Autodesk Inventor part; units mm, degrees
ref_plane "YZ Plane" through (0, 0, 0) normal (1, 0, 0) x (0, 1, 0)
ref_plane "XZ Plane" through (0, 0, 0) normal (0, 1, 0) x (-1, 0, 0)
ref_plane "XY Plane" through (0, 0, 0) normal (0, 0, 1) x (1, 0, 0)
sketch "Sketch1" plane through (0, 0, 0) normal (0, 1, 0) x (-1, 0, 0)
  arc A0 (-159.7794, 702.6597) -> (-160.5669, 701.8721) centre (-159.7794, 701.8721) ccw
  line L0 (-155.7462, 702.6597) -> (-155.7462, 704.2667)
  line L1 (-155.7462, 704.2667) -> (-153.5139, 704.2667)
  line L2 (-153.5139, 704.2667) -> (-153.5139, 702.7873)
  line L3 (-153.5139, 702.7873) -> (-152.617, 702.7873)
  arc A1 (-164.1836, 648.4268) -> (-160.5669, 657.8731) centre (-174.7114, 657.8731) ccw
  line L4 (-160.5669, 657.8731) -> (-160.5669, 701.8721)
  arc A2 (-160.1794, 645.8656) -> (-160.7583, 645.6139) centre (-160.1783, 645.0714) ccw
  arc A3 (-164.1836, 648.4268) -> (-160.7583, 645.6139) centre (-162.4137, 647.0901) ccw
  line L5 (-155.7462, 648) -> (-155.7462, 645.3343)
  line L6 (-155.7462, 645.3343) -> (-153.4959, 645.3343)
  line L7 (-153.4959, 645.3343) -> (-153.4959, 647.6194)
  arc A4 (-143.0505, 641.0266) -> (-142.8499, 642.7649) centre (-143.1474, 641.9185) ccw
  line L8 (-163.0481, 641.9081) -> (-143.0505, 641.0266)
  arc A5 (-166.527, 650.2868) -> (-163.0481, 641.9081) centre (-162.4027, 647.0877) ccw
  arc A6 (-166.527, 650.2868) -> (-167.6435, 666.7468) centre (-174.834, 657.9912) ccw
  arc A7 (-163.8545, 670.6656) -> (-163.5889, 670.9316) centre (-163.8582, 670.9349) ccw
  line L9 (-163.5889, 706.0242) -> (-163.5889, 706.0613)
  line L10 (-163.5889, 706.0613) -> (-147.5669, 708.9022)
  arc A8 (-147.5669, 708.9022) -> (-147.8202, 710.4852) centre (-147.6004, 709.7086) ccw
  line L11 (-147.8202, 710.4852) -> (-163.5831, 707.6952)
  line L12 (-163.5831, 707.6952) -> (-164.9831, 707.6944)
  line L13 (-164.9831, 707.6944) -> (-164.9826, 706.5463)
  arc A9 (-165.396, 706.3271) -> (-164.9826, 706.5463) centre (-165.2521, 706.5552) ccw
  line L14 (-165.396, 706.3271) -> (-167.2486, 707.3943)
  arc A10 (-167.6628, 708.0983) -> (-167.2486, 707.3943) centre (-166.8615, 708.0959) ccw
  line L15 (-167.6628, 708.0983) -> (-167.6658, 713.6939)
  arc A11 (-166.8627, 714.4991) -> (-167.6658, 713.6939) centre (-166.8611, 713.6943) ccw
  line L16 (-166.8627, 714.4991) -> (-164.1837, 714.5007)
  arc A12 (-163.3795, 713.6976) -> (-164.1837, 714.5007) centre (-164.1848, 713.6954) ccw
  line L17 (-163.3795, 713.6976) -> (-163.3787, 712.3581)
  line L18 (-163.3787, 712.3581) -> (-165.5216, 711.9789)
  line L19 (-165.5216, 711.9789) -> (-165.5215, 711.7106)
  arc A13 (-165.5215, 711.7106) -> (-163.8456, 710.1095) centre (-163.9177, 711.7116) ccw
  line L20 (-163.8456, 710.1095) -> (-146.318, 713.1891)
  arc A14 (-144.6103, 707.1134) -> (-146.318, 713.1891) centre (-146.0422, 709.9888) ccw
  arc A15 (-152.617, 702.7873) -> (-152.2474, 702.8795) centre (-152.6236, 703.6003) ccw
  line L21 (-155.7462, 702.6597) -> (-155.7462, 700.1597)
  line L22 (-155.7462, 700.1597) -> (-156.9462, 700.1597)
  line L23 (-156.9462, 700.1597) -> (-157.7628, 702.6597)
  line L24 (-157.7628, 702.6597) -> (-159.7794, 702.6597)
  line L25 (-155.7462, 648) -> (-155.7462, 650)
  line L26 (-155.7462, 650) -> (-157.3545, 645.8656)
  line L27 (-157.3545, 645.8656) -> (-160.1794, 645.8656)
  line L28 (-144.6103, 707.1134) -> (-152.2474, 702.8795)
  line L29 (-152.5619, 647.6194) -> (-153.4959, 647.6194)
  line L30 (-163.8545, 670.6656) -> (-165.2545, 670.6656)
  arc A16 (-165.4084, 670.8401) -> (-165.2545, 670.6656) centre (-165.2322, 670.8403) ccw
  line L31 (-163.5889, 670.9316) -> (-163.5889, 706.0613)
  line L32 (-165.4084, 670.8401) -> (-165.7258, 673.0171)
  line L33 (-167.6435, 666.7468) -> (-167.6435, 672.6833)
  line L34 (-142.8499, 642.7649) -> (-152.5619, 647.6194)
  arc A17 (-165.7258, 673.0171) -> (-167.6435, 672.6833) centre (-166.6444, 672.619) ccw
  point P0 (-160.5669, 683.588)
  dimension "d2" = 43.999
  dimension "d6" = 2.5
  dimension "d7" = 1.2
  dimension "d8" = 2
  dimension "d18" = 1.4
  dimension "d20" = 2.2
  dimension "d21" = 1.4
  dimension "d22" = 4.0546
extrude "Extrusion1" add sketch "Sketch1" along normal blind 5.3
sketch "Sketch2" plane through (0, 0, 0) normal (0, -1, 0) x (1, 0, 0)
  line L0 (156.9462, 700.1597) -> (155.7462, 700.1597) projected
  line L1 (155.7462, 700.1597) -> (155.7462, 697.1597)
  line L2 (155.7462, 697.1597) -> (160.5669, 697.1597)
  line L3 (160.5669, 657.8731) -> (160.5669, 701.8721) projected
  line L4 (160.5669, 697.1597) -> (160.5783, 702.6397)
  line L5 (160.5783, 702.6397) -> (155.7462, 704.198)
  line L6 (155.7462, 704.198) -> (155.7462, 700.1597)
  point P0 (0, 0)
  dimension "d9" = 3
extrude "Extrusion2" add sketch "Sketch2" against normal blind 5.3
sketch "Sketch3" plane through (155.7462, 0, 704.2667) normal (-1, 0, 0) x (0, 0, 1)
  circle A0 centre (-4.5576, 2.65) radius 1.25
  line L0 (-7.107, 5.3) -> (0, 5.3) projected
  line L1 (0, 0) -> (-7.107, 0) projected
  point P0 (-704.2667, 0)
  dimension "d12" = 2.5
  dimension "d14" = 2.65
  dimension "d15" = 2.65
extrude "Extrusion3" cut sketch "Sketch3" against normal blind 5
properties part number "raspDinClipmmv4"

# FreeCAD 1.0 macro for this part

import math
import FreeCAD as App
import Part
import Sketcher
Q = App.Units.Quantity

doc = App.newDocument("Part")
params = doc.addObject("Spreadsheet::Sheet", "Params")
for row, (alias, value) in enumerate([
    ("sketch1_width", "1.2 mm"),
    ("sketch1_width2", "1.4 mm"),
    ("sketch1_length", "1.4 mm"),
    ("sketch1_length2", "2.2 mm"),
    ("sketch1_length3", "2.63 mm"),
    ("pad1_length", "5.3 mm"),
    ("sketch2_length", "5.48 mm"),
    ("pad2_length", "5.3 mm"),
    ("sketch3_diameter", "2.5 mm"),
    ("pocket1_length", "5 mm"),
], start=1):
    params.set(f"A{row}", alias)
    params.set(f"B{row}", "=" + value)
    params.setAlias(f"B{row}", alias)

body = doc.addObject("PartDesign::Body", "Body")

sketch1 = body.newObject("Sketcher::SketchObject", "Sketch")
sketch1.AttachmentSupport = (doc.getObject("XZ_Plane"), [""])
sketch1.MapMode = "FlatFace"
sketch1.addGeometry([
    Part.ArcOfCircle(Part.Circle(App.Vector(159.7794, 701.8721, 0), App.Vector(0, 0, 1), 0.7876), math.radians(0), math.radians(90)),
    Part.LineSegment(App.Vector(159.7794, 702.6597, 0), App.Vector(157.7628, 702.6597, 0)),
    Part.LineSegment(App.Vector(157.7628, 702.6597, 0), App.Vector(156.9462, 700.1597, 0)),
    Part.LineSegment(App.Vector(156.9462, 700.1597, 0), App.Vector(155.7462, 700.1597, 0)),
    Part.LineSegment(App.Vector(155.7462, 700.1597, 0), App.Vector(155.7462, 704.2667, 0)),
    Part.LineSegment(App.Vector(155.7462, 704.2667, 0), App.Vector(153.5139, 704.2667, 0)),
    Part.LineSegment(App.Vector(153.5139, 704.2667, 0), App.Vector(153.5139, 702.7873, 0)),
    Part.LineSegment(App.Vector(153.5139, 702.7873, 0), App.Vector(152.617, 702.7873, 0)),
    Part.ArcOfCircle(Part.Circle(App.Vector(152.6236, 703.6003, 0), App.Vector(0, 0, 1), 0.813027), math.radians(-117.560961), math.radians(-90.465122)),
    Part.LineSegment(App.Vector(152.2474, 702.8795, 0), App.Vector(144.6103, 707.1134, 0)),
    Part.ArcOfCircle(Part.Circle(App.Vector(146.0422, 709.9888, 0), App.Vector(0, 0, 1), 3.212205), math.radians(85.074453), math.radians(243.527481)),
    Part.LineSegment(App.Vector(146.318, 713.1891, 0), App.Vector(163.8456, 710.1095, 0)),
    Part.ArcOfCircle(Part.Circle(App.Vector(163.9177, 711.7116, 0), App.Vector(0, 0, 1), 1.6038), math.radians(-92.576768), math.radians(-0.035725)),
    Part.LineSegment(App.Vector(165.5215, 711.7106, 0), App.Vector(165.5216, 711.9789, 0)),
    Part.LineSegment(App.Vector(165.5216, 711.9789, 0), App.Vector(163.3787, 712.3581, 0)),
    Part.LineSegment(App.Vector(163.3787, 712.3581, 0), App.Vector(163.3795, 713.6976, 0)),
    Part.ArcOfCircle(Part.Circle(App.Vector(164.1848, 713.6954, 0), App.Vector(0, 0, 1), 0.805303), math.radians(90.078263), math.radians(179.843474)),
    Part.LineSegment(App.Vector(164.1837, 714.5007, 0), App.Vector(166.8627, 714.4991, 0)),
    Part.ArcOfCircle(Part.Circle(App.Vector(166.8611, 713.6943, 0), App.Vector(0, 0, 1), 0.804802), math.radians(-0.028481), math.radians(89.886092)),
    Part.LineSegment(App.Vector(167.6658, 713.6939, 0), App.Vector(167.6628, 708.0983, 0)),
    Part.ArcOfCircle(Part.Circle(App.Vector(166.8615, 708.0959, 0), App.Vector(0, 0, 1), 0.801304), math.radians(-61.112771), math.radians(0.171608)),
    Part.LineSegment(App.Vector(167.2486, 707.3943, 0), App.Vector(165.396, 706.3271, 0)),
    Part.ArcOfCircle(Part.Circle(App.Vector(165.2521, 706.5552, 0), App.Vector(0, 0, 1), 0.269698), math.radians(-178.108545), math.radians(-57.753662)),
    Part.LineSegment(App.Vector(164.9826, 706.5463, 0), App.Vector(164.9831, 707.6944, 0)),
    Part.LineSegment(App.Vector(164.9831, 707.6944, 0), App.Vector(163.5831, 707.6952, 0)),
    Part.LineSegment(App.Vector(163.5831, 707.6952, 0), App.Vector(147.8202, 710.4852, 0)),
    Part.ArcOfCircle(Part.Circle(App.Vector(147.6004, 709.7086, 0), App.Vector(0, 0, 1), 0.807096), math.radians(74.196971), math.radians(267.621149)),
    Part.LineSegment(App.Vector(147.5669, 708.9022, 0), App.Vector(163.5889, 706.0613, 0)),
    Part.LineSegment(App.Vector(163.5889, 706.0613, 0), App.Vector(163.5889, 670.9316, 0)),
    Part.ArcOfCircle(Part.Circle(App.Vector(163.8582, 670.9349, 0), App.Vector(0, 0, 1), 0.269325), math.radians(-179.297933), math.radians(-90.787156)),
    Part.LineSegment(App.Vector(163.8545, 670.6656, 0), App.Vector(165.2545, 670.6656, 0)),
    Part.ArcOfCircle(Part.Circle(App.Vector(165.2322, 670.8403, 0), App.Vector(0, 0, 1), 0.1762), math.radians(-82.725682), math.radians(-0.065035)),
    Part.LineSegment(App.Vector(165.4084, 670.8401, 0), App.Vector(165.7258, 673.0171, 0)),
    Part.ArcOfCircle(Part.Circle(App.Vector(166.6444, 672.619, 0), App.Vector(0, 0, 1), 1.001154), math.radians(3.682359), math.radians(156.569207)),
    Part.LineSegment(App.Vector(167.6435, 672.6833, 0), App.Vector(167.6435, 666.7468, 0)),
    Part.ArcOfCircle(Part.Circle(App.Vector(174.834, 657.9912, 0), App.Vector(0, 0, 1), 11.329785), math.radians(129.394408), math.radians(222.844651)),
    Part.ArcOfCircle(Part.Circle(App.Vector(162.4027, 647.0877, 0), App.Vector(0, 0, 1), 5.219587), math.radians(-82.897313), math.radians(37.799696)),
    Part.LineSegment(App.Vector(163.0481, 641.9081, 0), App.Vector(143.0505, 641.0266, 0)),
    Part.ArcOfCircle(Part.Circle(App.Vector(143.1474, 641.9185, 0), App.Vector(0, 0, 1), 0.897148), math.radians(109.365996), math.radians(263.799451)),
    Part.LineSegment(App.Vector(142.8499, 642.7649, 0), App.Vector(152.5619, 647.6194, 0)),
    Part.LineSegment(App.Vector(152.5619, 647.6194, 0), App.Vector(153.4959, 647.6194, 0)),
    Part.LineSegment(App.Vector(153.4959, 647.6194, 0), App.Vector(153.4959, 645.3343, 0)),
    Part.LineSegment(App.Vector(153.4959, 645.3343, 0), App.Vector(155.7462, 645.3343, 0)),
    Part.LineSegment(App.Vector(155.7462, 645.3343, 0), App.Vector(155.7462, 650, 0)),
    Part.LineSegment(App.Vector(155.7462, 650, 0), App.Vector(157.3545, 645.8656, 0)),
    Part.LineSegment(App.Vector(157.3545, 645.8656, 0), App.Vector(160.1794, 645.8656, 0)),
    Part.ArcOfCircle(Part.Circle(App.Vector(160.1783, 645.0714, 0), App.Vector(0, 0, 1), 0.794201), math.radians(43.086599), math.radians(89.920643)),
    Part.ArcOfCircle(Part.Circle(App.Vector(162.4137, 647.0901, 0), App.Vector(0, 0, 1), 2.217952), math.radians(-138.275073), math.radians(37.061577)),
    Part.ArcOfCircle(Part.Circle(App.Vector(174.7114, 657.8731, 0), App.Vector(0, 0, 1), 14.14451), math.radians(180), math.radians(221.90074)),
    Part.LineSegment(App.Vector(160.5669, 657.8731, 0), App.Vector(160.5669, 701.8721, 0)),
], False)
sketch1.addConstraint([
    Sketcher.Constraint("Coincident", 0, 2, 1, 1),
    Sketcher.Constraint("Coincident", 1, 2, 2, 1),
    Sketcher.Constraint("Coincident", 2, 2, 3, 1),
    Sketcher.Constraint("Coincident", 3, 2, 4, 1),
    Sketcher.Constraint("Coincident", 4, 2, 5, 1),
    Sketcher.Constraint("Coincident", 5, 2, 6, 1),
    Sketcher.Constraint("Coincident", 6, 2, 7, 1),
    Sketcher.Constraint("Coincident", 7, 2, 8, 2),
    Sketcher.Constraint("Coincident", 8, 1, 9, 1),
    Sketcher.Constraint("Coincident", 9, 2, 10, 2),
    Sketcher.Constraint("Coincident", 10, 1, 11, 1),
    Sketcher.Constraint("Coincident", 11, 2, 12, 1),
    Sketcher.Constraint("Coincident", 12, 2, 13, 1),
    Sketcher.Constraint("Coincident", 13, 2, 14, 1),
    Sketcher.Constraint("Coincident", 14, 2, 15, 1),
    Sketcher.Constraint("Coincident", 15, 2, 16, 2),
    Sketcher.Constraint("Coincident", 16, 1, 17, 1),
    Sketcher.Constraint("Coincident", 17, 2, 18, 2),
    Sketcher.Constraint("Coincident", 18, 1, 19, 1),
    Sketcher.Constraint("Coincident", 19, 2, 20, 2),
    Sketcher.Constraint("Coincident", 20, 1, 21, 1),
    Sketcher.Constraint("Coincident", 21, 2, 22, 2),
    Sketcher.Constraint("Coincident", 22, 1, 23, 1),
    Sketcher.Constraint("Coincident", 23, 2, 24, 1),
    Sketcher.Constraint("Coincident", 24, 2, 25, 1),
    Sketcher.Constraint("Coincident", 25, 2, 26, 1),
    Sketcher.Constraint("Coincident", 26, 2, 27, 1),
    Sketcher.Constraint("Coincident", 27, 2, 28, 1),
    Sketcher.Constraint("Coincident", 28, 2, 29, 1),
    Sketcher.Constraint("Coincident", 29, 2, 30, 1),
    Sketcher.Constraint("Coincident", 30, 2, 31, 1),
    Sketcher.Constraint("Coincident", 31, 2, 32, 1),
    Sketcher.Constraint("Coincident", 32, 2, 33, 2),
    Sketcher.Constraint("Coincident", 33, 1, 34, 1),
    Sketcher.Constraint("Coincident", 34, 2, 35, 1),
    Sketcher.Constraint("Coincident", 35, 2, 36, 2),
    Sketcher.Constraint("Coincident", 36, 1, 37, 1),
    Sketcher.Constraint("Coincident", 37, 2, 38, 2),
    Sketcher.Constraint("Coincident", 38, 1, 39, 1),
    Sketcher.Constraint("Coincident", 39, 2, 40, 1),
    Sketcher.Constraint("Coincident", 40, 2, 41, 1),
    Sketcher.Constraint("Coincident", 41, 2, 42, 1),
    Sketcher.Constraint("Coincident", 42, 2, 43, 1),
    Sketcher.Constraint("Coincident", 43, 2, 44, 1),
    Sketcher.Constraint("Coincident", 44, 2, 45, 1),
    Sketcher.Constraint("Coincident", 45, 2, 46, 2),
    Sketcher.Constraint("Coincident", 46, 1, 47, 1),
    Sketcher.Constraint("Coincident", 47, 2, 48, 2),
    Sketcher.Constraint("Coincident", 48, 1, 49, 1),
    Sketcher.Constraint("Coincident", 49, 2, 0, 1),
    Sketcher.Constraint("Horizontal", 1),
    Sketcher.Constraint("Horizontal", 3),
    Sketcher.Constraint("Vertical", 4),
    Sketcher.Constraint("Horizontal", 5),
    Sketcher.Constraint("Vertical", 6),
    Sketcher.Constraint("Horizontal", 7),
    Sketcher.Constraint("Vertical", 13),
    Sketcher.Constraint("Vertical", 28),
    Sketcher.Constraint("Horizontal", 30),
    Sketcher.Constraint("Vertical", 34),
    Sketcher.Constraint("Horizontal", 40),
    Sketcher.Constraint("Vertical", 41),
    Sketcher.Constraint("Horizontal", 42),
    Sketcher.Constraint("Vertical", 43),
    Sketcher.Constraint("Horizontal", 45),
    Sketcher.Constraint("Vertical", 49),
    Sketcher.Constraint("DistanceX", 3, 2, 3, 1, Q("1.2 mm")),
    Sketcher.Constraint("DistanceX", 30, 1, 30, 2, Q("1.4 mm")),
    Sketcher.Constraint("Distance", 24, Q("1.4 mm")),
    Sketcher.Constraint("Distance", 32, Q("2.2 mm")),
    Sketcher.Constraint("DistanceY", 49, 1, 49, 2, Q("43.999 mm")),
    Sketcher.Constraint("DistanceY", -1, 1, 43, 2, Q("650 mm")),
    Sketcher.Constraint("Radius", 8, Q("0.813 mm")),
    Sketcher.Constraint("Radius", 26, Q("0.807 mm")),
    Sketcher.Constraint("Radius", 47, Q("2.218 mm")),
    Sketcher.Constraint("Radius", 0, Q("0.7876 mm")),
    Sketcher.Constraint("Radius", 10, Q("3.2122 mm")),
    Sketcher.Constraint("Radius", 12, Q("1.6038 mm")),
    Sketcher.Constraint("Radius", 16, Q("0.8053 mm")),
    Sketcher.Constraint("Radius", 18, Q("0.8048 mm")),
    Sketcher.Constraint("Radius", 20, Q("0.8013 mm")),
    Sketcher.Constraint("Radius", 22, Q("0.2697 mm")),
    Sketcher.Constraint("Radius", 29, Q("0.2693 mm")),
    Sketcher.Constraint("Radius", 31, Q("0.1762 mm")),
    Sketcher.Constraint("Radius", 33, Q("1.0012 mm")),
    Sketcher.Constraint("Radius", 35, Q("11.3298 mm")),
    Sketcher.Constraint("Radius", 36, Q("5.2196 mm")),
    Sketcher.Constraint("Radius", 38, Q("0.8971 mm")),
    Sketcher.Constraint("Radius", 46, Q("0.7942 mm")),
    Sketcher.Constraint("Radius", 48, Q("14.1445 mm")),
    Sketcher.Constraint("Distance", 2, Q("2.63 mm")),
    Sketcher.Constraint("DistanceX", 7, 2, 7, 1, Q("0.897 mm")),
    Sketcher.Constraint("DistanceX", 40, 1, 40, 2, Q("0.934 mm")),
    Sketcher.Constraint("DistanceX", 45, 1, 45, 2, Q("2.825 mm")),
    Sketcher.Constraint("DistanceY", 4, 1, 4, 2, Q("4.107 mm")),
    Sketcher.Constraint("DistanceY", 41, 2, 41, 1, Q("2.285 mm")),
    Sketcher.Constraint("DistanceY", -1, 1, 47, 3, Q("647.09 mm")),
    Sketcher.Constraint("DistanceY", -1, 1, 31, 2, Q("670.84 mm")),
    Sketcher.Constraint("DistanceX", -1, 1, 38, 1, Q("142.85 mm")),
    Sketcher.Constraint("Distance", 11, Q("17.796 mm")),
    Sketcher.Constraint("Distance", 17, Q("2.679 mm")),
    Sketcher.Constraint("Distance", 21, Q("2.138 mm")),
    Sketcher.Constraint("Distance", 23, Q("1.148 mm")),
    Sketcher.Constraint("Distance", 25, Q("16.008 mm")),
    Sketcher.Constraint("Distance", 27, Q("16.272 mm")),
    Sketcher.Constraint("Distance", 37, Q("20.017 mm")),
    Sketcher.Constraint("DistanceX", 1, 2, 1, 1, Q("2.0166 mm")),
    Sketcher.Constraint("DistanceX", 5, 2, 5, 1, Q("2.2323 mm")),
    Sketcher.Constraint("DistanceX", 42, 1, 42, 2, Q("2.2503 mm")),
    Sketcher.Constraint("DistanceY", 6, 2, 6, 1, Q("1.4794 mm")),
    Sketcher.Constraint("DistanceY", 13, 1, 13, 2, Q("0.2683 mm")),
    Sketcher.Constraint("DistanceY", 28, 2, 28, 1, Q("35.1297 mm")),
    Sketcher.Constraint("DistanceY", 34, 2, 34, 1, Q("5.9365 mm")),
    Sketcher.Constraint("DistanceY", 43, 1, 43, 2, Q("4.6657 mm")),
    Sketcher.Constraint("DistanceY", -1, 1, 0, 3, Q("701.872 mm")),
    Sketcher.Constraint("DistanceX", -1, 1, 18, 3, Q("166.861 mm")),
    Sketcher.Constraint("DistanceY", -1, 1, 20, 3, Q("708.096 mm")),
    Sketcher.Constraint("DistanceX", -1, 1, 22, 3, Q("165.252 mm")),
    Sketcher.Constraint("DistanceY", -1, 1, 29, 3, Q("670.935 mm")),
    Sketcher.Constraint("DistanceY", -1, 1, 33, 3, Q("672.619 mm")),
    Sketcher.Constraint("DistanceX", -1, 1, 35, 3, Q("174.834 mm")),
    Sketcher.Constraint("DistanceY", -1, 1, 48, 3, Q("657.873 mm")),
    Sketcher.Constraint("DistanceX", -1, 1, 5, 2, Q("153.514 mm")),
    Sketcher.Constraint("DistanceX", -1, 1, 10, 1, Q("146.318 mm")),
    Sketcher.Constraint("DistanceY", -1, 1, 13, 2, Q("711.979 mm")),
    Sketcher.Constraint("DistanceY", -1, 1, 14, 2, Q("712.358 mm")),
    Sketcher.Constraint("DistanceY", -1, 1, 17, 2, Q("714.499 mm")),
    Sketcher.Constraint("DistanceY", -1, 1, 18, 1, Q("713.694 mm")),
    Sketcher.Constraint("DistanceX", -1, 1, 21, 2, Q("165.396 mm")),
    Sketcher.Constraint("DistanceY", -1, 1, 21, 2, Q("706.327 mm")),
    Sketcher.Constraint("DistanceX", -1, 1, 23, 2, Q("164.983 mm")),
    Sketcher.Constraint("DistanceX", -1, 1, 26, 2, Q("147.567 mm")),
    Sketcher.Constraint("DistanceX", -1, 1, 27, 2, Q("163.589 mm")),
    Sketcher.Constraint("DistanceY", -1, 1, 32, 2, Q("673.017 mm")),
    Sketcher.Constraint("DistanceX", -1, 1, 35, 2, Q("166.527 mm")),
    Sketcher.Constraint("DistanceX", -1, 1, 36, 1, Q("163.048 mm")),
    Sketcher.Constraint("DistanceY", -1, 1, 38, 1, Q("642.765 mm")),
    Sketcher.Constraint("DistanceX", -1, 1, 39, 2, Q("152.562 mm")),
    Sketcher.Constraint("DistanceY", -1, 1, 46, 1, Q("645.614 mm")),
    Sketcher.Constraint("DistanceX", -1, 1, 48, 1, Q("160.567 mm")),
    Sketcher.Constraint("DistanceY", -1, 1, 48, 1, Q("657.873 mm")),
    Sketcher.Constraint("Distance", 9, Q("8.7322 mm")),
    Sketcher.Constraint("Distance", 14, Q("2.1762 mm")),
    Sketcher.Constraint("Distance", 15, Q("1.3395 mm")),
    Sketcher.Constraint("Distance", 19, Q("5.5956 mm")),
    Sketcher.Constraint("Distance", 44, Q("4.4362 mm")),
    Sketcher.Constraint("DistanceX", -1, 1, 8, 3, Q("152.6236 mm")),
    Sketcher.Constraint("DistanceY", -1, 1, 8, 3, Q("703.6003 mm")),
    Sketcher.Constraint("DistanceX", -1, 1, 10, 3, Q("146.0422 mm")),
    Sketcher.Constraint("DistanceY", -1, 1, 10, 3, Q("709.9888 mm")),
    Sketcher.Constraint("DistanceX", -1, 1, 12, 3, Q("163.9177 mm")),
    Sketcher.Constraint("DistanceY", -1, 1, 12, 3, Q("711.7116 mm")),
    Sketcher.Constraint("DistanceX", -1, 1, 16, 3, Q("164.1848 mm")),
    Sketcher.Constraint("DistanceY", -1, 1, 16, 3, Q("713.6954 mm")),
    Sketcher.Constraint("DistanceX", -1, 1, 20, 3, Q("166.8615 mm")),
    Sketcher.Constraint("DistanceX", -1, 1, 26, 3, Q("147.6004 mm")),
    Sketcher.Constraint("DistanceY", -1, 1, 26, 3, Q("709.7086 mm")),
    Sketcher.Constraint("DistanceX", -1, 1, 31, 3, Q("165.2322 mm")),
    Sketcher.Constraint("DistanceY", -1, 1, 31, 3, Q("670.8403 mm")),
    Sketcher.Constraint("DistanceY", -1, 1, 35, 3, Q("657.9912 mm")),
    Sketcher.Constraint("DistanceX", -1, 1, 36, 3, Q("162.4027 mm")),
    Sketcher.Constraint("DistanceX", -1, 1, 38, 3, Q("143.1474 mm")),
    Sketcher.Constraint("DistanceX", -1, 1, 46, 3, Q("160.1783 mm")),
    Sketcher.Constraint("DistanceY", -1, 1, 46, 3, Q("645.0714 mm")),
    Sketcher.Constraint("DistanceX", -1, 1, 8, 1, Q("152.2474 mm")),
    Sketcher.Constraint("DistanceX", -1, 1, 16, 1, Q("164.1837 mm")),
    Sketcher.Constraint("DistanceX", -1, 1, 22, 1, Q("164.9825 mm")),
    Sketcher.Constraint("DistanceY", -1, 1, 24, 2, Q("707.6952 mm")),
])
sketch1.setExpression("Constraints[66]", "Params.sketch1_width")
sketch1.setExpression("Constraints[67]", "Params.sketch1_width2")
sketch1.setExpression("Constraints[68]", "Params.sketch1_length")
sketch1.setExpression("Constraints[69]", "Params.sketch1_length2")
sketch1.setExpression("Constraints[90]", "Params.sketch1_length3")
pad1 = body.newObject("PartDesign::Pad", "Pad")
pad1.Profile = sketch1
pad1.setExpression("Length", "Params.pad1_length")
pad1.Reversed = True

sketch2 = body.newObject("Sketcher::SketchObject", "Sketch001")
sketch2.AttachmentSupport = (doc.getObject("XZ_Plane"), [""])
sketch2.MapMode = "FlatFace"
sketch2.addGeometry([
    Part.LineSegment(App.Vector(155.7, 704.2, 0), App.Vector(155.7, 697.2, 0)),
    Part.LineSegment(App.Vector(155.7, 697.2, 0), App.Vector(160.6, 697.2, 0)),
    Part.LineSegment(App.Vector(160.6, 697.2, 0), App.Vector(160.6, 702.6, 0)),
    Part.LineSegment(App.Vector(160.6, 702.6, 0), App.Vector(155.7, 704.2, 0)),
], False)
sketch2.addConstraint([
    Sketcher.Constraint("Coincident", 0, 2, 1, 1),
    Sketcher.Constraint("Coincident", 1, 2, 2, 1),
    Sketcher.Constraint("Coincident", 2, 2, 3, 1),
    Sketcher.Constraint("Coincident", 3, 2, 0, 1),
    Sketcher.Constraint("Vertical", 0),
    Sketcher.Constraint("Horizontal", 1),
    Sketcher.Constraint("Angle", 2, Q("89.8808 deg")),
    Sketcher.Constraint("Distance", 2, Q("5.48 mm")),
    Sketcher.Constraint("DistanceX", 1, 1, 1, 2, Q("4.8207 mm")),
    Sketcher.Constraint("DistanceY", 0, 2, 0, 1, Q("7.0383 mm")),
    Sketcher.Constraint("DistanceX", -1, 1, 1, 2, Q("160.567 mm")),
    Sketcher.Constraint("DistanceY", -1, 1, 3, 2, Q("704.198 mm")),
])
sketch2.setExpression("Constraints[7]", "Params.sketch2_length")
pad2 = body.newObject("PartDesign::Pad", "Pad001")
pad2.Profile = sketch2
pad2.setExpression("Length", "Params.pad2_length")
pad2.Reversed = True

sketch3 = body.newObject("Sketcher::SketchObject", "Sketch002")
sketch3.AttachmentSupport = (doc.getObject("YZ_Plane"), [""])
sketch3.MapMode = "FlatFace"
sketch3.AttachmentOffset = App.Placement(App.Vector(0, 0, 155.7462), App.Rotation())
sketch3.addGeometry(Part.Circle(App.Vector(2.6, 699.7, 0), App.Vector(0, 0, 1), 1.2), False)
sketch3.addConstraint([
    Sketcher.Constraint("Diameter", 0, Q("2.5 mm")),
    Sketcher.Constraint("DistanceX", -1, 1, 0, 3, Q("2.65 mm")),
    Sketcher.Constraint("DistanceY", -1, 1, 0, 3, Q("699.709 mm")),
])
sketch3.setExpression("Constraints[0]", "Params.sketch3_diameter")
pocket1 = body.newObject("PartDesign::Pocket", "Pocket")
pocket1.Profile = sketch3
pocket1.setExpression("Length", "Params.pocket1_length")
pocket1.Reversed = True

doc.recompute()
